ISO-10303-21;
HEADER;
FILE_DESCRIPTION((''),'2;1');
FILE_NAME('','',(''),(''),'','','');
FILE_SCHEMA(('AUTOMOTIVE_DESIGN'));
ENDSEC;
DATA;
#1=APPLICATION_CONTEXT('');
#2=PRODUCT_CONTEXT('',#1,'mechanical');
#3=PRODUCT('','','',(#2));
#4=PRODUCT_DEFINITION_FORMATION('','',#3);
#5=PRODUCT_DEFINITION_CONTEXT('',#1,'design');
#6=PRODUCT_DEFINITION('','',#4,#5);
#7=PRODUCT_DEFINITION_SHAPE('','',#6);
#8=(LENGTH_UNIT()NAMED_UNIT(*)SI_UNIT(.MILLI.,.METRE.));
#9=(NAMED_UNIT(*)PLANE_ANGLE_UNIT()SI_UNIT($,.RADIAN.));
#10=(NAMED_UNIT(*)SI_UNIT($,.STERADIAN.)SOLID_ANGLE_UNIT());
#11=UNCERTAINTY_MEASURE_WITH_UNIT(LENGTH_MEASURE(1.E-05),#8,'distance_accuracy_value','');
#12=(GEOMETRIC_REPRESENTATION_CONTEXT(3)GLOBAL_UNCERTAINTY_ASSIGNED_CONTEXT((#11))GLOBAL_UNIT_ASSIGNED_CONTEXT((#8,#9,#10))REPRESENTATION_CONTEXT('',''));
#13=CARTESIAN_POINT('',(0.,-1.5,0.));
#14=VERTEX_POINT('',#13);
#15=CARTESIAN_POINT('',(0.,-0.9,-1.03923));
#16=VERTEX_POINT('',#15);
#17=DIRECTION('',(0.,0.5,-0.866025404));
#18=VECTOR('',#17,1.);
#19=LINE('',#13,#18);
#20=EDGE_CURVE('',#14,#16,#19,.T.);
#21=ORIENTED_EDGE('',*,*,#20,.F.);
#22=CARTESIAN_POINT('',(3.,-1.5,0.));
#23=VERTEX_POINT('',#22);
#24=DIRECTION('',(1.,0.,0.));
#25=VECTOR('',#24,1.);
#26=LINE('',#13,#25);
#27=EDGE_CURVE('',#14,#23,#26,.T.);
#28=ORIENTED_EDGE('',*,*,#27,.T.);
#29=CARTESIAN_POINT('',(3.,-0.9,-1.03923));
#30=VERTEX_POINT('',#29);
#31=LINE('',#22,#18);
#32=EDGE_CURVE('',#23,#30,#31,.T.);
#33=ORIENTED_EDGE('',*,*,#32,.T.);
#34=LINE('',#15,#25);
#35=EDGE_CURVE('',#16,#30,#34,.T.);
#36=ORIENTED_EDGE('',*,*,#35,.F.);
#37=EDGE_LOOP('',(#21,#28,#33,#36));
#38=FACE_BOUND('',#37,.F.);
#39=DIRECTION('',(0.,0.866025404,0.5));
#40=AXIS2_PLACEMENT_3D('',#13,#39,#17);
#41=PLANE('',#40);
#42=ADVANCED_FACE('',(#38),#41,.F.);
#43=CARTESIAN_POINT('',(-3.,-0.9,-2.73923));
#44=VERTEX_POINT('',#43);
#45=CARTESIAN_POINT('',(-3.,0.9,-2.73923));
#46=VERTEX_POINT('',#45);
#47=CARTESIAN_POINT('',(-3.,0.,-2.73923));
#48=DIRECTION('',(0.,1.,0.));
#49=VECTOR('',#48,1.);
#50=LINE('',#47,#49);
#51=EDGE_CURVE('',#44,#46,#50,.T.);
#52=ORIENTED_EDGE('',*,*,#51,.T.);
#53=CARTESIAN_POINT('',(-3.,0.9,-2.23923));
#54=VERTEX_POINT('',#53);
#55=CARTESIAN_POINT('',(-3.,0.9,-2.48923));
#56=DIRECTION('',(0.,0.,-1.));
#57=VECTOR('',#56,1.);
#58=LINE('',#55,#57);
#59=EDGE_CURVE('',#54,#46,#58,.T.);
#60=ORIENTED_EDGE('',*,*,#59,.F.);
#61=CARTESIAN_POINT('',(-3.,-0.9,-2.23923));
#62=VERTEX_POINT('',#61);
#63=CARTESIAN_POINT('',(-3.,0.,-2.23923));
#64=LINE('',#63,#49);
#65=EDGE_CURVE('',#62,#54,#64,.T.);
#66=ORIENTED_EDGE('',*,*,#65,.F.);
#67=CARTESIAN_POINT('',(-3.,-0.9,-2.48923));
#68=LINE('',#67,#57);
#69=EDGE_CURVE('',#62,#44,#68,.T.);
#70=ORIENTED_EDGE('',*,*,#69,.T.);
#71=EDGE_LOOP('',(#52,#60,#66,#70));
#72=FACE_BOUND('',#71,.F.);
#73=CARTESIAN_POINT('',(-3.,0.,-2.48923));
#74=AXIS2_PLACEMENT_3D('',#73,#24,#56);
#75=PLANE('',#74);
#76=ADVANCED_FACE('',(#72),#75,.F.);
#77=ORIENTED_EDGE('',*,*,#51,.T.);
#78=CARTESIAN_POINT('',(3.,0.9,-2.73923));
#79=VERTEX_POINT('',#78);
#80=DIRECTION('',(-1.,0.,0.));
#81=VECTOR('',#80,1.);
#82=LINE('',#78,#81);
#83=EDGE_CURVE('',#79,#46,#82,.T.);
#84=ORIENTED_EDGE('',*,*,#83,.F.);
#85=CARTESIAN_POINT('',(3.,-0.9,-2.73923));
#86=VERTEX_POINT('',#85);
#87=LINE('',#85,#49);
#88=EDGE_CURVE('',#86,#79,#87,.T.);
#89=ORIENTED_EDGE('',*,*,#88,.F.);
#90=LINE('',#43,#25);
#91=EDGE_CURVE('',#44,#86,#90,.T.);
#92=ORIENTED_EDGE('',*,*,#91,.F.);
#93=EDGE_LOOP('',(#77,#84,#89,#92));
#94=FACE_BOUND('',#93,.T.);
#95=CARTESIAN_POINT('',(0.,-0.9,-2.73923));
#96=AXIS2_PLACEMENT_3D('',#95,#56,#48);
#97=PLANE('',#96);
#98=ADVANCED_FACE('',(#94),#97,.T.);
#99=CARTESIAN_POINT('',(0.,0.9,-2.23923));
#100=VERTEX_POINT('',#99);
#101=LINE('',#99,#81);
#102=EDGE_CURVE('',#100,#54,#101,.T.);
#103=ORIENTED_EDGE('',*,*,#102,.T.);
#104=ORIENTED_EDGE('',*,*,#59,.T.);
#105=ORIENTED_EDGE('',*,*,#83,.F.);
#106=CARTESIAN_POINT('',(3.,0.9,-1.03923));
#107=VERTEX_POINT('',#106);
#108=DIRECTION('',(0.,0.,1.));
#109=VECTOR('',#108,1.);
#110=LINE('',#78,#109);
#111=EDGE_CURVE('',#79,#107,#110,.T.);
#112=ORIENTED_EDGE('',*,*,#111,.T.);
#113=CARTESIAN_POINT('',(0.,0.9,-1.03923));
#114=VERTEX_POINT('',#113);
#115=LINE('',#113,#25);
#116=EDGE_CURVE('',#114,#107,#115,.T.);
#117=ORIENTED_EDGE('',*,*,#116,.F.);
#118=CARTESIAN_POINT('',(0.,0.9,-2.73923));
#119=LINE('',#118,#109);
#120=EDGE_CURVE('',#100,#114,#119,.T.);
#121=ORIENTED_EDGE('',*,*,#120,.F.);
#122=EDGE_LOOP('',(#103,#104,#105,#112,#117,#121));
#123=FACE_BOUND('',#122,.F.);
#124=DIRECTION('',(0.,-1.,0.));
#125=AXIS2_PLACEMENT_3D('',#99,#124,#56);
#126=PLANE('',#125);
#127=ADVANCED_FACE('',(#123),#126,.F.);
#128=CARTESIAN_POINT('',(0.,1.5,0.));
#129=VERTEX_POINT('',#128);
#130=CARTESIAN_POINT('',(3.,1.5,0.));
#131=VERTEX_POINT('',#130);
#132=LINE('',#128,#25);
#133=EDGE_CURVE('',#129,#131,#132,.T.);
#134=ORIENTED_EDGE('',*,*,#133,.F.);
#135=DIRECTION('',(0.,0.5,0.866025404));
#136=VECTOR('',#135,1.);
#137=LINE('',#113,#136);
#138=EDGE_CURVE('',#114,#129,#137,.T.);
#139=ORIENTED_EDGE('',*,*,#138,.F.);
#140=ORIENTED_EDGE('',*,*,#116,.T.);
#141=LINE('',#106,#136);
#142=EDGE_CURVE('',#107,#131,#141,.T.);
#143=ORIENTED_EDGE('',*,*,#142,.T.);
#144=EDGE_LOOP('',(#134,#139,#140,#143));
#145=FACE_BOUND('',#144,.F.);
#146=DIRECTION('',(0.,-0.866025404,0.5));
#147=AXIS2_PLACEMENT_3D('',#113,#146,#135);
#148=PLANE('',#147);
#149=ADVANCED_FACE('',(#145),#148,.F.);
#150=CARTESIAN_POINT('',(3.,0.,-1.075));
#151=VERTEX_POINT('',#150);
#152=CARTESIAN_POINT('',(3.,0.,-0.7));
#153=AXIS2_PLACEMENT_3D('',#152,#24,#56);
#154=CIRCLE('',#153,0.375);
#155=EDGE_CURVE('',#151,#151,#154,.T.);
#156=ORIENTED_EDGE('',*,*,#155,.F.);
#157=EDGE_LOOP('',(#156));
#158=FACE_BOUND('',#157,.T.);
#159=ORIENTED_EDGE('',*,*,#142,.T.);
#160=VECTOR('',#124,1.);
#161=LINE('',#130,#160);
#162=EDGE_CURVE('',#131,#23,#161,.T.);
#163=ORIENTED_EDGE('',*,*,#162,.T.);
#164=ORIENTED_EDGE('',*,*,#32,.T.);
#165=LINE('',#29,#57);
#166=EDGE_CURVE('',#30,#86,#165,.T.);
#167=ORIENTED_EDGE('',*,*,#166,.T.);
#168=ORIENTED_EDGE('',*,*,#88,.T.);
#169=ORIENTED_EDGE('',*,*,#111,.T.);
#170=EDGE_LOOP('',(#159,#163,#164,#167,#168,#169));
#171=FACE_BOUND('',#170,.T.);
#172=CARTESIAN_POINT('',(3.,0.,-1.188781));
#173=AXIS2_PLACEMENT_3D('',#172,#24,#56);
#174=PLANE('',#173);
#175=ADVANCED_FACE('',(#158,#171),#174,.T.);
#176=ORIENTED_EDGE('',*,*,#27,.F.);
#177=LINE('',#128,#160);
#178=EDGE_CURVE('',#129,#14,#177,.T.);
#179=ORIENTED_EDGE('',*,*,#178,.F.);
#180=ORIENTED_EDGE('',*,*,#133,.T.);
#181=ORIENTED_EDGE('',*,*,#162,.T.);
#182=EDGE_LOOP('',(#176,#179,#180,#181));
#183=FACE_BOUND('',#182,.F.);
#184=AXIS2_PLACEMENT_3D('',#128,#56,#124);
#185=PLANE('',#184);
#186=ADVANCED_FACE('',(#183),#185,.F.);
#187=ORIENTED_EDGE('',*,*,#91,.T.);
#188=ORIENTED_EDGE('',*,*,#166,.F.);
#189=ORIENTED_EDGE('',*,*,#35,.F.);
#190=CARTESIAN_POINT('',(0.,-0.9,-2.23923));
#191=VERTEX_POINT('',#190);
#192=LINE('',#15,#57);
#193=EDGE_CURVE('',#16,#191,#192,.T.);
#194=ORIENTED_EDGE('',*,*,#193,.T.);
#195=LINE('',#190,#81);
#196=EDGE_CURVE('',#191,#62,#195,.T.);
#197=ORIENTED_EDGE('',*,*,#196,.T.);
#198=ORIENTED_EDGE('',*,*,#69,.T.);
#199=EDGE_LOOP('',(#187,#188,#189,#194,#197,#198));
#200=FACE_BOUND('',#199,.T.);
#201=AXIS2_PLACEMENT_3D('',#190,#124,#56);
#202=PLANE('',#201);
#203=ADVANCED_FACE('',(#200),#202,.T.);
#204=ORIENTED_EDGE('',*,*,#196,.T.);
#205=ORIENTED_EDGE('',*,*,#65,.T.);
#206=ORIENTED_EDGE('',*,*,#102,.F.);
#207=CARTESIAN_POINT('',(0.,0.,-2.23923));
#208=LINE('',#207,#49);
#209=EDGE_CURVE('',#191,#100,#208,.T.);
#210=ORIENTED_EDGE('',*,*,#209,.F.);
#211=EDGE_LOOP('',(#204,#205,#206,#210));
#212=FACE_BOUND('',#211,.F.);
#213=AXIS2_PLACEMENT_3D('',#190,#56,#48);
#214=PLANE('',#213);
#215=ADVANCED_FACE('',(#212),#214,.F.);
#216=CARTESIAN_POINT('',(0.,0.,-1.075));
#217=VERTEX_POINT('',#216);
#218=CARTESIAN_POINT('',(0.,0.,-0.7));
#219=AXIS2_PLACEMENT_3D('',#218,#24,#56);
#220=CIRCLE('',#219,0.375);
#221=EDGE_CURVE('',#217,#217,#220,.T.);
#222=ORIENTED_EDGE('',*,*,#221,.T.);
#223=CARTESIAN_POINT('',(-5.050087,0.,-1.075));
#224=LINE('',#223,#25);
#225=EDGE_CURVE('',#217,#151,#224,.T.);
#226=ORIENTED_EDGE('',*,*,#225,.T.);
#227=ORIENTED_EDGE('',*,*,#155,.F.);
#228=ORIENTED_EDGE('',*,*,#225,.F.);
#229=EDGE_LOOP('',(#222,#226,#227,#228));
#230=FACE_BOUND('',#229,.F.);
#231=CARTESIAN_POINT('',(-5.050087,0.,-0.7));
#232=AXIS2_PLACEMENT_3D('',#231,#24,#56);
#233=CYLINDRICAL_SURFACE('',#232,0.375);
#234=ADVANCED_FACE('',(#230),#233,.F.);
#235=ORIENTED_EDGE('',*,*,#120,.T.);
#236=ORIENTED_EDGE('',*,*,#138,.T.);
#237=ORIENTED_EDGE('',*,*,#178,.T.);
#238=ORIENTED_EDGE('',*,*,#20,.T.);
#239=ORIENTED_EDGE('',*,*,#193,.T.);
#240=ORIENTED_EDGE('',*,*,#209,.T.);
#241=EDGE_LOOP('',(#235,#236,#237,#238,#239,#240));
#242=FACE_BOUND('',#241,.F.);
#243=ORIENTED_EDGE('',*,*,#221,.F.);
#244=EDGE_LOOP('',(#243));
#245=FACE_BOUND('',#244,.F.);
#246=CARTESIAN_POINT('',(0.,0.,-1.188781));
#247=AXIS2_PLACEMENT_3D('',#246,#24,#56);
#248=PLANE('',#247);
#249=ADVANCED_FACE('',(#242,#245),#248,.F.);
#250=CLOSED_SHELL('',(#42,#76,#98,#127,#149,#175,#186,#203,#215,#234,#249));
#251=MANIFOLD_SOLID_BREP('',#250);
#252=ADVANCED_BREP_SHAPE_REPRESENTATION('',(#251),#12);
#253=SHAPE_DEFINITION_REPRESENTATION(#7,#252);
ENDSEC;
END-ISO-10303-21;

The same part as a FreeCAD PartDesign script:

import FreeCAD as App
import Part
import Sketcher
Q = App.Units.Quantity

doc = App.newDocument("Part")
body = doc.addObject("PartDesign::Body", "Body")

# Sketch on YZ plane
sketch1 = body.newObject("Sketcher::SketchObject", "Sketch")
sketch1.AttachmentSupport = (doc.getObject("YZ_Plane"), [""])
sketch1.MapMode = "FlatFace"
sketch1.addGeometry(Part.LineSegment(App.Vector(1.5, 0, 0), App.Vector(-1.5, 0, 0)), False)
sketch1.addGeometry(Part.LineSegment(App.Vector(-1.5, 0, 0), App.Vector(-0.9, -1, 0)), False)
sketch1.addGeometry(Part.LineSegment(App.Vector(-0.9, -1, 0), App.Vector(-0.9, -2.7, 0)), False)
sketch1.addGeometry(Part.LineSegment(App.Vector(-0.9, -2.7, 0), App.Vector(0.9, -2.7, 0)), False)
sketch1.addGeometry(Part.LineSegment(App.Vector(0.9, -2.7, 0), App.Vector(0.9, -1, 0)), False)
sketch1.addGeometry(Part.LineSegment(App.Vector(0.9, -1, 0), App.Vector(1.5, 0, 0)), False)
sketch1.addConstraint(Sketcher.Constraint("Coincident", 0, 2, 1, 1))
sketch1.addConstraint(Sketcher.Constraint("Coincident", 1, 2, 2, 1))
sketch1.addConstraint(Sketcher.Constraint("Coincident", 2, 2, 3, 1))
sketch1.addConstraint(Sketcher.Constraint("Coincident", 3, 2, 4, 1))
sketch1.addConstraint(Sketcher.Constraint("Coincident", 4, 2, 5, 1))
sketch1.addConstraint(Sketcher.Constraint("Coincident", 5, 2, 0, 1))
sketch1.addConstraint(Sketcher.Constraint("Horizontal", 0))
sketch1.addConstraint(Sketcher.Constraint("Vertical", 2))
sketch1.addConstraint(Sketcher.Constraint("Horizontal", 3))
sketch1.addConstraint(Sketcher.Constraint("Vertical", 4))
sketch1.addConstraint(Sketcher.Constraint("Symmetric", 0, 2, 5, 2, -1, 1))
sketch1.addConstraint(Sketcher.Constraint("Symmetric", 1, 2, 4, 2, -2))
sketch1.addConstraint(Sketcher.Constraint("DistanceX", 0, 2, 0, 1, Q("3 mm")))
sketch1.addConstraint(Sketcher.Constraint("Angle", 1, Q("-60 deg")))
sketch1.addConstraint(Sketcher.Constraint("DistanceX", 3, 1, 3, 2, Q("1.8 mm")))
sketch1.addConstraint(Sketcher.Constraint("DistanceY", 2, 2, 2, 1, Q("1.7 mm")))
pad1 = body.newObject("PartDesign::Pad", "Pad")
pad1.Profile = sketch1
pad1.Length = 3

# Sketch on YZ plane
sketch2 = body.newObject("Sketcher::SketchObject", "Sketch001")
sketch2.AttachmentSupport = (doc.getObject("YZ_Plane"), [""])
sketch2.MapMode = "FlatFace"
sketch2.addGeometry(Part.Circle(App.Vector(0, -0.7, 0), App.Vector(0, 0, 1), 0.38), False)
sketch2.addConstraint(Sketcher.Constraint("PointOnObject", 0, 3, -2))
sketch2.addConstraint(Sketcher.Constraint("Diameter", 0, Q("0.75 mm")))
sketch2.addConstraint(Sketcher.Constraint("DistanceY", 0, 3, -1, 1, Q("0.7 mm")))
doc.recompute()
hole = body.newObject("PartDesign::Hole", "Hole")
hole.Profile = sketch2
hole.ThreadType = "None"
hole.Diameter = 0.75
hole.DepthType = "ThroughAll"
hole.Reversed = True

# Sketch on YZ plane
sketch3 = body.newObject("Sketcher::SketchObject", "Sketch002")
sketch3.AttachmentSupport = (doc.getObject("YZ_Plane"), [""])
sketch3.MapMode = "FlatFace"
sketch3.addGeometry(Part.LineSegment(App.Vector(0.9, -2.2, 0), App.Vector(-0.9, -2.2, 0)), False)
sketch3.addGeometry(Part.LineSegment(App.Vector(-0.9, -2.2, 0), App.Vector(-0.9, -2.7, 0)), False)
sketch3.addGeometry(Part.LineSegment(App.Vector(-0.9, -2.7, 0), App.Vector(0.9, -2.7, 0)), False)
sketch3.addGeometry(Part.LineSegment(App.Vector(0.9, -2.7, 0), App.Vector(0.9, -2.2, 0)), False)
sketch3.addConstraint(Sketcher.Constraint("Coincident", 0, 2, 1, 1))
sketch3.addConstraint(Sketcher.Constraint("Coincident", 1, 2, 2, 1))
sketch3.addConstraint(Sketcher.Constraint("Coincident", 2, 2, 3, 1))
sketch3.addConstraint(Sketcher.Constraint("Coincident", 3, 2, 0, 1))
sketch3.addConstraint(Sketcher.Constraint("Horizontal", 0))
sketch3.addConstraint(Sketcher.Constraint("Vertical", 1))
sketch3.addConstraint(Sketcher.Constraint("Horizontal", 2))
sketch3.addConstraint(Sketcher.Constraint("Vertical", 3))
sketch3.addConstraint(Sketcher.Constraint("DistanceX", 0, 2, 0, 1, Q("1.8 mm")))
sketch3.addConstraint(Sketcher.Constraint("DistanceY", 1, 2, 1, 1, Q("0.5 mm")))
sketch3.addConstraint(Sketcher.Constraint("DistanceX", 0, 2, -1, 1, Q("0.9 mm")))
sketch3.addConstraint(Sketcher.Constraint("DistanceY", 0, 2, -1, 1, Q("2.23923 mm")))
pad2 = body.newObject("PartDesign::Pad", "Pad001")
pad2.Profile = sketch3
pad2.Length = 3
pad2.Reversed = True

doc.recompute()
